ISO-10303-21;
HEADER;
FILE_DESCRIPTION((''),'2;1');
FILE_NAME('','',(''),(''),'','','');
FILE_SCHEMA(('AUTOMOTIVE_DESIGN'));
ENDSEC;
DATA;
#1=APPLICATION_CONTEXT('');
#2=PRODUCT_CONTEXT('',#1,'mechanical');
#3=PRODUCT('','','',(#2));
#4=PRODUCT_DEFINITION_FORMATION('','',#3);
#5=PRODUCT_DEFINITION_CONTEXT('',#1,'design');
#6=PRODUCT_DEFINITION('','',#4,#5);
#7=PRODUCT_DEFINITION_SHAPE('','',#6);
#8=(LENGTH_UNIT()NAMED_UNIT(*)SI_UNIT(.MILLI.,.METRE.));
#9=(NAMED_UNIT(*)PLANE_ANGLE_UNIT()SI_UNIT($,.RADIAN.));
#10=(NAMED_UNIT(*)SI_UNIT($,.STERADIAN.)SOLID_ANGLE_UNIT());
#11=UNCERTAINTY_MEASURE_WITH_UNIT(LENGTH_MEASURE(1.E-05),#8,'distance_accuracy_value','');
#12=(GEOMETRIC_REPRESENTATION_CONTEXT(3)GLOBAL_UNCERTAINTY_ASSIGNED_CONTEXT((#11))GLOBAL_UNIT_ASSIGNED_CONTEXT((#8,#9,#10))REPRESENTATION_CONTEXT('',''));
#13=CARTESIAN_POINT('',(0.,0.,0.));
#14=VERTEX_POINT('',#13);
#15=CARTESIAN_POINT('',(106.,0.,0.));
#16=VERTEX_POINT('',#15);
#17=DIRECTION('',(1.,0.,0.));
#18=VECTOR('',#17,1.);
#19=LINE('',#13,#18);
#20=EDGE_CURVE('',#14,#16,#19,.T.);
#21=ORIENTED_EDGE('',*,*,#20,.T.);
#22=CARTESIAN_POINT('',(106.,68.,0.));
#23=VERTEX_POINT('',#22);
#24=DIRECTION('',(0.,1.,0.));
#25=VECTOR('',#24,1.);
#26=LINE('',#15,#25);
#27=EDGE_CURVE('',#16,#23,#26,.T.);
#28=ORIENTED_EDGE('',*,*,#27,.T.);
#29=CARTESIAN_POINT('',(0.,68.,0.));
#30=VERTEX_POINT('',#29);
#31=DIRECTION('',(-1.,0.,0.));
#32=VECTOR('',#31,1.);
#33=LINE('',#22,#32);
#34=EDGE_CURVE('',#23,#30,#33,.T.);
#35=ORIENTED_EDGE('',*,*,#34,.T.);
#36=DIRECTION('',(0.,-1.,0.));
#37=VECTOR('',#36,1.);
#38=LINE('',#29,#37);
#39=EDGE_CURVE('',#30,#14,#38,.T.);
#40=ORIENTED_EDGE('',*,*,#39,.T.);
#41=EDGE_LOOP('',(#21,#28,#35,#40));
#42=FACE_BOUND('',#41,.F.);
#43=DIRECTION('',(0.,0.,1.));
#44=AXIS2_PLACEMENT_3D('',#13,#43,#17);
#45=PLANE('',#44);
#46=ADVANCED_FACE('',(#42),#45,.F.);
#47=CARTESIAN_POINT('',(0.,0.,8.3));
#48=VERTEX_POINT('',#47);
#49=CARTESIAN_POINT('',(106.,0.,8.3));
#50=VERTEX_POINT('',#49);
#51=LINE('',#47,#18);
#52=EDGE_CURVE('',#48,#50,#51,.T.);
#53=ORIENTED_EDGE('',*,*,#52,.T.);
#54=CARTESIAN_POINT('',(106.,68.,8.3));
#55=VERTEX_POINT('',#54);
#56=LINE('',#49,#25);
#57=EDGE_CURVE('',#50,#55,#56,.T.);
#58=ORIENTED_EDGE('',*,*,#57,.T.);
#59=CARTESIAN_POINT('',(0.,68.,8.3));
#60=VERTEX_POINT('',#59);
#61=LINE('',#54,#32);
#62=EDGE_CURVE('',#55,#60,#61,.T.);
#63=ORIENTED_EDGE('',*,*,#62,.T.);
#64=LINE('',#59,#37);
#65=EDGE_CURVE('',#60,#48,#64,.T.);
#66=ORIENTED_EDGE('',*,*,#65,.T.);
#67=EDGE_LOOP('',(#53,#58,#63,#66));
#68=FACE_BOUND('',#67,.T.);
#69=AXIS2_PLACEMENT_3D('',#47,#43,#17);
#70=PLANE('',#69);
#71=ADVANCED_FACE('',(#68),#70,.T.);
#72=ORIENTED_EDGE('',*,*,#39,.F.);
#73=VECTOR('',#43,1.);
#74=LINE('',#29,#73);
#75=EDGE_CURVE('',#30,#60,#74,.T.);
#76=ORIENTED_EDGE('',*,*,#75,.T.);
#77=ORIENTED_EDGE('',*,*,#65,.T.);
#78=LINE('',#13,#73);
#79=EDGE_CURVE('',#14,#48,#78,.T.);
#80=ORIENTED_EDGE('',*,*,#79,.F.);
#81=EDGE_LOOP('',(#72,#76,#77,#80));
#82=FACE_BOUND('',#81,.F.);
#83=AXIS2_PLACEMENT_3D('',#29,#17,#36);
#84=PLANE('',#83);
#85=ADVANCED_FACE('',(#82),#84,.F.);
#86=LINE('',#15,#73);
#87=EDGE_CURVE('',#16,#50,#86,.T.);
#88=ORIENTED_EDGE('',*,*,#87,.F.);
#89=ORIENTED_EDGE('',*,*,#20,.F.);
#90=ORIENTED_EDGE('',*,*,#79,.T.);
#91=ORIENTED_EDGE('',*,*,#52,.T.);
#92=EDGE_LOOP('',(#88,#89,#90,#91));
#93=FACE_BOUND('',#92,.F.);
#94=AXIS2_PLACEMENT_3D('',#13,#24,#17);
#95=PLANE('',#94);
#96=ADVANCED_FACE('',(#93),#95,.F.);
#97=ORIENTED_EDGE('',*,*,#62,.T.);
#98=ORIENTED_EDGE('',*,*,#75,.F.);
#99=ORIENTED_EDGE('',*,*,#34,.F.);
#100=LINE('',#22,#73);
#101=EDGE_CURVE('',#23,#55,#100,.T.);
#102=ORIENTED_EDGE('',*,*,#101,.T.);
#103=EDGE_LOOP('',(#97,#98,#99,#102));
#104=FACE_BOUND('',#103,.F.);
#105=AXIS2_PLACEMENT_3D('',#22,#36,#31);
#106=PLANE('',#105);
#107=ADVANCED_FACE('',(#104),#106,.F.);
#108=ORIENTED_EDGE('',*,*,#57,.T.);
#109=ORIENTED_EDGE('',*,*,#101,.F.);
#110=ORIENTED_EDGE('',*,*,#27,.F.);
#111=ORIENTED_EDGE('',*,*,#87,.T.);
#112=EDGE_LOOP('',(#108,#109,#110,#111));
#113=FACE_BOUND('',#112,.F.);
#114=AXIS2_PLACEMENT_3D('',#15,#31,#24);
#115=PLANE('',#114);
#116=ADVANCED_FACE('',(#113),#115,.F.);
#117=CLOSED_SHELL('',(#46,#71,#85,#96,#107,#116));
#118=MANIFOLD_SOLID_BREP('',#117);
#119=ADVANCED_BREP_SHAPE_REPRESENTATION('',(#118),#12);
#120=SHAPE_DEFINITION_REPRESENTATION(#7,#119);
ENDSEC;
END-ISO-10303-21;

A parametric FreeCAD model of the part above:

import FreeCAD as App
import Part
import Sketcher
from FreeCAD import Vector

doc = App.newDocument("Part")
body = doc.addObject("PartDesign::Body", "Body")

sketch1 = doc.addObject("Sketcher::SketchObject", "Sketch")
body.addObject(sketch1)
sketch1.AttachmentSupport = (doc.XY_Plane, [""])
sketch1.MapMode = "FlatFace"
sketch1.addGeometry(Part.LineSegment(Vector(0, 68, 0), Vector(0, 0, 0)), False)
sketch1.addGeometry(Part.LineSegment(Vector(0, 0, 0), Vector(106, 0, 0)), False)
sketch1.addGeometry(Part.LineSegment(Vector(106, 0, 0), Vector(106, 68, 0)), False)
sketch1.addGeometry(Part.LineSegment(Vector(106, 68, 0), Vector(0, 68, 0)), False)
sketch1.addConstraint(Sketcher.Constraint("Coincident", 0, 2, 1, 1))
sketch1.addConstraint(Sketcher.Constraint("Coincident", 1, 2, 2, 1))
sketch1.addConstraint(Sketcher.Constraint("Coincident", 2, 2, 3, 1))
sketch1.addConstraint(Sketcher.Constraint("Coincident", 3, 2, 0, 1))
sketch1.addConstraint(Sketcher.Constraint("Vertical", 0))
sketch1.addConstraint(Sketcher.Constraint("Horizontal", 1))
sketch1.addConstraint(Sketcher.Constraint("Vertical", 2))
sketch1.addConstraint(Sketcher.Constraint("Horizontal", 3))
sketch1.addConstraint(Sketcher.Constraint("Coincident", 0, 2, -1, 1))
sketch1.addConstraint(Sketcher.Constraint("DistanceX", 1, 1, 1, 2, 106.0))
sketch1.addConstraint(Sketcher.Constraint("DistanceY", 0, 2, 0, 1, 68.0))
pad1 = doc.addObject("PartDesign::Pad", "Pad")
body.addObject(pad1)
pad1.Profile = sketch1
pad1.Length = 8.3

doc.recompute()
